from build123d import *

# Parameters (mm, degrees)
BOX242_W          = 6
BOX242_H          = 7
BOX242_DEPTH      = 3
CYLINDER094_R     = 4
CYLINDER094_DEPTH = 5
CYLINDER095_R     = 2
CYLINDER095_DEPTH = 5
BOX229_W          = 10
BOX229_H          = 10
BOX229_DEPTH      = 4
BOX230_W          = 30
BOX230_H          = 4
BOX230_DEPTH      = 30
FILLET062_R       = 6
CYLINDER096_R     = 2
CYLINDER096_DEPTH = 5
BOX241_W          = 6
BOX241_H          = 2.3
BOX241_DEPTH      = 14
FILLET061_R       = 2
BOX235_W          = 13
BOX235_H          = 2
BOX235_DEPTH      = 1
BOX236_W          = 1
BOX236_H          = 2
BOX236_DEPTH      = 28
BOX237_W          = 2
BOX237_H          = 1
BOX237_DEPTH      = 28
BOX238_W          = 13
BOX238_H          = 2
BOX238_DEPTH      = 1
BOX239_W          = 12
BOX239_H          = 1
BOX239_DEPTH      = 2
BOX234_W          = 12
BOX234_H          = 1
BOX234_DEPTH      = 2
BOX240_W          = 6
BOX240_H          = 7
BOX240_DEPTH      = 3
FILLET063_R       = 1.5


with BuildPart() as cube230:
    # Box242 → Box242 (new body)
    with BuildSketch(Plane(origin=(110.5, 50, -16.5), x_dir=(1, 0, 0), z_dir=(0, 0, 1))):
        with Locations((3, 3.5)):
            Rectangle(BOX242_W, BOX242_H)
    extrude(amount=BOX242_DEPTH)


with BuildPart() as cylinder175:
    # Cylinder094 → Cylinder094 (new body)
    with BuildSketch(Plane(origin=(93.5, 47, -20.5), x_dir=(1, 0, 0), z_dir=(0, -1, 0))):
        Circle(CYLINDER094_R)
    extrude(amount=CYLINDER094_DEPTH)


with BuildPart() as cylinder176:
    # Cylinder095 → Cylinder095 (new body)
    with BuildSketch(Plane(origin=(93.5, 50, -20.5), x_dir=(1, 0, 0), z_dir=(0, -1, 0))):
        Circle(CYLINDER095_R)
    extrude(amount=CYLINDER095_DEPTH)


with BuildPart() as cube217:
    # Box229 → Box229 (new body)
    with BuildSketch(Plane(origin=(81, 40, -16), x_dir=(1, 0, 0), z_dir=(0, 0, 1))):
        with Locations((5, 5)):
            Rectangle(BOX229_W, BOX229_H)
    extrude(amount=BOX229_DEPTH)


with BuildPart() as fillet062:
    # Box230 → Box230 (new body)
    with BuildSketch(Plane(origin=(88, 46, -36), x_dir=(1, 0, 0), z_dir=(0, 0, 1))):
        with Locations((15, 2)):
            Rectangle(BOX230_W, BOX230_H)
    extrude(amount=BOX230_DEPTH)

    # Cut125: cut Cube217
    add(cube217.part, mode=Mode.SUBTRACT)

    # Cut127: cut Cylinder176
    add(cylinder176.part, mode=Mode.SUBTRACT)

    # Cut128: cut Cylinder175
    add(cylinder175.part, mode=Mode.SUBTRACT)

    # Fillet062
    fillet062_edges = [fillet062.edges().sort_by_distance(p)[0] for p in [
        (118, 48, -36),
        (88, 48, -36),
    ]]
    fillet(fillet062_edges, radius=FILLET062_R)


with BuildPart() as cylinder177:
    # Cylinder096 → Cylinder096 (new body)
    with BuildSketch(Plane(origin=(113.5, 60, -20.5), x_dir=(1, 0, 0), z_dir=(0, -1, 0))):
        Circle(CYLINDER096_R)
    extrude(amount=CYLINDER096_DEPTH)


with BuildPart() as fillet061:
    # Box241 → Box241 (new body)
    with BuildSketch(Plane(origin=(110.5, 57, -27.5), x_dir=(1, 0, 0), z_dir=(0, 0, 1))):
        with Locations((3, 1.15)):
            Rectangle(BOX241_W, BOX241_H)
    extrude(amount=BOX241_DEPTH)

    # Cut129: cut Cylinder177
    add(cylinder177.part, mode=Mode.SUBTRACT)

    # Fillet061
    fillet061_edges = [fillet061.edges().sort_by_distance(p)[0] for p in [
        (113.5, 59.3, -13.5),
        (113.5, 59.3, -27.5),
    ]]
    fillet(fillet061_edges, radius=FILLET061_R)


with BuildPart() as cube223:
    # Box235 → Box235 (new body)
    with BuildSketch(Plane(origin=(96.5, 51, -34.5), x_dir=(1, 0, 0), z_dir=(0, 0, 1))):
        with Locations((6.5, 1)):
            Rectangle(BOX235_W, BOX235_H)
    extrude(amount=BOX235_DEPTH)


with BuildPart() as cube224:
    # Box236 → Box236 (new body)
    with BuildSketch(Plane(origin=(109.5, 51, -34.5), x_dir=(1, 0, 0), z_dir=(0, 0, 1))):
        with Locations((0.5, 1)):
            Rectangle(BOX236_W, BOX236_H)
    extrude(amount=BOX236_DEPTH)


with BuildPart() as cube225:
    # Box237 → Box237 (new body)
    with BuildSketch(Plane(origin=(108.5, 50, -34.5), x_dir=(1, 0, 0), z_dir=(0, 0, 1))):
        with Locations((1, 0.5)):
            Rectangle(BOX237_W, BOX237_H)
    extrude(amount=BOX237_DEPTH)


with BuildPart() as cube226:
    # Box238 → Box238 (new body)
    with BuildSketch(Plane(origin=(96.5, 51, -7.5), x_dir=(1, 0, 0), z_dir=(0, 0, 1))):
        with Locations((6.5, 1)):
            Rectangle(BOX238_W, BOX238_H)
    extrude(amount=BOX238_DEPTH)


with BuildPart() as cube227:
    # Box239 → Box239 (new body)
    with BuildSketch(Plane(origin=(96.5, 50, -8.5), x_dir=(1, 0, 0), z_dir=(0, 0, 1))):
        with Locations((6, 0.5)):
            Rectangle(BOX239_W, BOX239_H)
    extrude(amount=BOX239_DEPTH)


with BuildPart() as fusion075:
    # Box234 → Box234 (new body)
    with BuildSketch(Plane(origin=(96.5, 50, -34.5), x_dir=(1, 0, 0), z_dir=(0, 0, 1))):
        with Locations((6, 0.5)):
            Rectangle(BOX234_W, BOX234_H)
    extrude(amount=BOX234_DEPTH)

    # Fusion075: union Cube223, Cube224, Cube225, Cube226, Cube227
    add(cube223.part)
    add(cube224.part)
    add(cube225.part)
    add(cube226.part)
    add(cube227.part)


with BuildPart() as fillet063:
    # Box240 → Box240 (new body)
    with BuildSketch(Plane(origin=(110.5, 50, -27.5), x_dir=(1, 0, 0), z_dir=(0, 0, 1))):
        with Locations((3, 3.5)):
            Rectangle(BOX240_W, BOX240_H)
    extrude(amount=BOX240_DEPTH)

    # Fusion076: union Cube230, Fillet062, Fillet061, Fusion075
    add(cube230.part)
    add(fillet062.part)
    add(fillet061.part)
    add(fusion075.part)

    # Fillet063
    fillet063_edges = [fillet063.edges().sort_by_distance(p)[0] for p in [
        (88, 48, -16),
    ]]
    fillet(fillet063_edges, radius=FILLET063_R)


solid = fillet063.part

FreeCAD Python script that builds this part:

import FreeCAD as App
import Part
import Sketcher
Q = App.Units.Quantity


def edges_at(feature, points):
    """Names of the edges that pass closest to the given points."""
    edges = feature.Shape.Edges
    near = lambda p: min(range(len(edges)), key=lambda i: edges[i].distToShape(Part.Vertex(*p))[0])
    return sorted({f"Edge{near(p) + 1}" for p in points})

doc = App.newDocument("Part")
body = doc.addObject("PartDesign::Body", "Body")

# Sketch on XY plane
sketch1 = body.newObject("Sketcher::SketchObject", "Sketch")
sketch1.AttachmentSupport = (doc.getObject("XY_Plane"), [""])
sketch1.MapMode = "FlatFace"
sketch1.AttachmentOffset = App.Placement(App.Vector(0, 0, -16.5), App.Rotation())
sketch1.addGeometry(Part.LineSegment(App.Vector(110.5, 57, 0), App.Vector(110.5, 50, 0)), False)
sketch1.addGeometry(Part.LineSegment(App.Vector(110.5, 50, 0), App.Vector(116.5, 50, 0)), False)
sketch1.addGeometry(Part.LineSegment(App.Vector(116.5, 50, 0), App.Vector(116.5, 57, 0)), False)
sketch1.addGeometry(Part.LineSegment(App.Vector(116.5, 57, 0), App.Vector(110.5, 57, 0)), False)
sketch1.addConstraint(Sketcher.Constraint("Coincident", 0, 2, 1, 1))
sketch1.addConstraint(Sketcher.Constraint("Coincident", 1, 2, 2, 1))
sketch1.addConstraint(Sketcher.Constraint("Coincident", 2, 2, 3, 1))
sketch1.addConstraint(Sketcher.Constraint("Coincident", 3, 2, 0, 1))
sketch1.addConstraint(Sketcher.Constraint("Vertical", 0))
sketch1.addConstraint(Sketcher.Constraint("Horizontal", 1))
sketch1.addConstraint(Sketcher.Constraint("Vertical", 2))
sketch1.addConstraint(Sketcher.Constraint("Horizontal", 3))
sketch1.addConstraint(Sketcher.Constraint("DistanceX", 1, 1, 1, 2, Q("6 mm")))
sketch1.addConstraint(Sketcher.Constraint("DistanceY", 0, 2, 0, 1, Q("7 mm")))
sketch1.addConstraint(Sketcher.Constraint("DistanceY", -1, 1, 0, 2, Q("50 mm")))
sketch1.addConstraint(Sketcher.Constraint("DistanceX", -1, 1, 0, 2, Q("110.5 mm")))
pad1 = body.newObject("PartDesign::Pad", "Pad")
pad1.Profile = sketch1
pad1.Length = 3
body2 = doc.addObject("PartDesign::Body", "Body001")

# Sketch on XZ plane
sketch2 = body2.newObject("Sketcher::SketchObject", "Sketch001")
sketch2.AttachmentSupport = (doc.getObject("XZ_Plane001"), [""])
sketch2.MapMode = "FlatFace"
sketch2.AttachmentOffset = App.Placement(App.Vector(0, 0, -47), App.Rotation())
sketch2.addGeometry(Part.Circle(App.Vector(93.5, -20.5, 0), App.Vector(0, 0, 1), 4), False)
sketch2.addConstraint(Sketcher.Constraint("Diameter", 0, Q("8 mm")))
sketch2.addConstraint(Sketcher.Constraint("DistanceX", -1, 1, 0, 3, Q("93.5 mm")))
sketch2.addConstraint(Sketcher.Constraint("DistanceY", 0, 3, -1, 1, Q("20.5 mm")))
pad2 = body2.newObject("PartDesign::Pad", "Pad001")
pad2.Profile = sketch2
pad2.Length = 5
body3 = doc.addObject("PartDesign::Body", "Body002")

# Sketch on XZ plane
sketch3 = body3.newObject("Sketcher::SketchObject", "Sketch002")
sketch3.AttachmentSupport = (doc.getObject("XZ_Plane002"), [""])
sketch3.MapMode = "FlatFace"
sketch3.AttachmentOffset = App.Placement(App.Vector(0, 0, -50), App.Rotation())
sketch3.addGeometry(Part.Circle(App.Vector(93.5, -20.5, 0), App.Vector(0, 0, 1), 2), False)
sketch3.addConstraint(Sketcher.Constraint("Diameter", 0, Q("4 mm")))
sketch3.addConstraint(Sketcher.Constraint("DistanceX", -1, 1, 0, 3, Q("93.5 mm")))
sketch3.addConstraint(Sketcher.Constraint("DistanceY", 0, 3, -1, 1, Q("20.5 mm")))
pad3 = body3.newObject("PartDesign::Pad", "Pad002")
pad3.Profile = sketch3
pad3.Length = 5
body4 = doc.addObject("PartDesign::Body", "Body003")

# Sketch on XY plane
sketch4 = body4.newObject("Sketcher::SketchObject", "Sketch003")
sketch4.AttachmentSupport = (doc.getObject("XY_Plane003"), [""])
sketch4.MapMode = "FlatFace"
sketch4.AttachmentOffset = App.Placement(App.Vector(0, 0, -16), App.Rotation())
sketch4.addGeometry(Part.LineSegment(App.Vector(81, 50, 0), App.Vector(81, 40, 0)), False)
sketch4.addGeometry(Part.LineSegment(App.Vector(81, 40, 0), App.Vector(91, 40, 0)), False)
sketch4.addGeometry(Part.LineSegment(App.Vector(91, 40, 0), App.Vector(91, 50, 0)), False)
sketch4.addGeometry(Part.LineSegment(App.Vector(91, 50, 0), App.Vector(81, 50, 0)), False)
sketch4.addConstraint(Sketcher.Constraint("Coincident", 0, 2, 1, 1))
sketch4.addConstraint(Sketcher.Constraint("Coincident", 1, 2, 2, 1))
sketch4.addConstraint(Sketcher.Constraint("Coincident", 2, 2, 3, 1))
sketch4.addConstraint(Sketcher.Constraint("Coincident", 3, 2, 0, 1))
sketch4.addConstraint(Sketcher.Constraint("Vertical", 0))
sketch4.addConstraint(Sketcher.Constraint("Horizontal", 1))
sketch4.addConstraint(Sketcher.Constraint("Vertical", 2))
sketch4.addConstraint(Sketcher.Constraint("Horizontal", 3))
sketch4.addConstraint(Sketcher.Constraint("Equal", 3, 0))
sketch4.addConstraint(Sketcher.Constraint("DistanceX", 1, 1, 1, 2, Q("10 mm")))
sketch4.addConstraint(Sketcher.Constraint("DistanceX", -1, 1, 0, 2, Q("81 mm")))
sketch4.addConstraint(Sketcher.Constraint("DistanceY", -1, 1, 0, 2, Q("40 mm")))
pad4 = body4.newObject("PartDesign::Pad", "Pad003")
pad4.Profile = sketch4
pad4.Length = 4
body5 = doc.addObject("PartDesign::Body", "Body004")

# Sketch on XY plane
sketch5 = body5.newObject("Sketcher::SketchObject", "Sketch004")
sketch5.AttachmentSupport = (doc.getObject("XY_Plane004"), [""])
sketch5.MapMode = "FlatFace"
sketch5.AttachmentOffset = App.Placement(App.Vector(0, 0, -36), App.Rotation())
sketch5.addGeometry(Part.LineSegment(App.Vector(88, 50, 0), App.Vector(88, 46, 0)), False)
sketch5.addGeometry(Part.LineSegment(App.Vector(88, 46, 0), App.Vector(118, 46, 0)), False)
sketch5.addGeometry(Part.LineSegment(App.Vector(118, 46, 0), App.Vector(118, 50, 0)), False)
sketch5.addGeometry(Part.LineSegment(App.Vector(118, 50, 0), App.Vector(88, 50, 0)), False)
sketch5.addConstraint(Sketcher.Constraint("Coincident", 0, 2, 1, 1))
sketch5.addConstraint(Sketcher.Constraint("Coincident", 1, 2, 2, 1))
sketch5.addConstraint(Sketcher.Constraint("Coincident", 2, 2, 3, 1))
sketch5.addConstraint(Sketcher.Constraint("Coincident", 3, 2, 0, 1))
sketch5.addConstraint(Sketcher.Constraint("Vertical", 0))
sketch5.addConstraint(Sketcher.Constraint("Horizontal", 1))
sketch5.addConstraint(Sketcher.Constraint("Vertical", 2))
sketch5.addConstraint(Sketcher.Constraint("Horizontal", 3))
sketch5.addConstraint(Sketcher.Constraint("DistanceX", 1, 1, 1, 2, Q("30 mm")))
sketch5.addConstraint(Sketcher.Constraint("DistanceY", 0, 2, 0, 1, Q("4 mm")))
sketch5.addConstraint(Sketcher.Constraint("DistanceX", -1, 1, 0, 2, Q("88 mm")))
sketch5.addConstraint(Sketcher.Constraint("DistanceY", -1, 1, 0, 2, Q("46 mm")))
pad5 = body5.newObject("PartDesign::Pad", "Pad004")
pad5.Profile = sketch5
pad5.Length = 30
doc.recompute()

boolean = body5.newObject("PartDesign::Boolean", "Boolean")
boolean.Type = "Cut"
boolean.addObjects([body4])
doc.recompute()

boolean2 = body5.newObject("PartDesign::Boolean", "Boolean001")
boolean2.Type = "Cut"
boolean2.addObjects([body3])
doc.recompute()

boolean3 = body5.newObject("PartDesign::Boolean", "Boolean002")
boolean3.Type = "Cut"
boolean3.addObjects([body2])
doc.recompute()

fillet = body5.newObject("PartDesign::Fillet", "Fillet")
fillet.Base = (boolean3, edges_at(boolean3, [(118, 48, -36), (88, 48, -36)]))
fillet.Radius = 6
body6 = doc.addObject("PartDesign::Body", "Body005")

# Sketch on XZ plane
sketch6 = body6.newObject("Sketcher::SketchObject", "Sketch005")
sketch6.AttachmentSupport = (doc.getObject("XZ_Plane005"), [""])
sketch6.MapMode = "FlatFace"
sketch6.AttachmentOffset = App.Placement(App.Vector(0, 0, -60), App.Rotation())
sketch6.addGeometry(Part.Circle(App.Vector(113.5, -20.5, 0), App.Vector(0, 0, 1), 2), False)
sketch6.addConstraint(Sketcher.Constraint("Diameter", 0, Q("4 mm")))
sketch6.addConstraint(Sketcher.Constraint("DistanceX", -1, 1, 0, 3, Q("113.5 mm")))
sketch6.addConstraint(Sketcher.Constraint("DistanceY", 0, 3, -1, 1, Q("20.5 mm")))
pad6 = body6.newObject("PartDesign::Pad", "Pad005")
pad6.Profile = sketch6
pad6.Length = 5
body7 = doc.addObject("PartDesign::Body", "Body006")

# Sketch on XY plane
sketch7 = body7.newObject("Sketcher::SketchObject", "Sketch006")
sketch7.AttachmentSupport = (doc.getObject("XY_Plane006"), [""])
sketch7.MapMode = "FlatFace"
sketch7.AttachmentOffset = App.Placement(App.Vector(0, 0, -27.5), App.Rotation())
sketch7.addGeometry(Part.LineSegment(App.Vector(110.5, 59.3, 0), App.Vector(110.5, 57, 0)), False)
sketch7.addGeometry(Part.LineSegment(App.Vector(110.5, 57, 0), App.Vector(116.5, 57, 0)), False)
sketch7.addGeometry(Part.LineSegment(App.Vector(116.5, 57, 0), App.Vector(116.5, 59.3, 0)), False)
sketch7.addGeometry(Part.LineSegment(App.Vector(116.5, 59.3, 0), App.Vector(110.5, 59.3, 0)), False)
sketch7.addConstraint(Sketcher.Constraint("Coincident", 0, 2, 1, 1))
sketch7.addConstraint(Sketcher.Constraint("Coincident", 1, 2, 2, 1))
sketch7.addConstraint(Sketcher.Constraint("Coincident", 2, 2, 3, 1))
sketch7.addConstraint(Sketcher.Constraint("Coincident", 3, 2, 0, 1))
sketch7.addConstraint(Sketcher.Constraint("Vertical", 0))
sketch7.addConstraint(Sketcher.Constraint("Horizontal", 1))
sketch7.addConstraint(Sketcher.Constraint("Vertical", 2))
sketch7.addConstraint(Sketcher.Constraint("Horizontal", 3))
sketch7.addConstraint(Sketcher.Constraint("DistanceX", 1, 1, 1, 2, Q("6 mm")))
sketch7.addConstraint(Sketcher.Constraint("DistanceY", 0, 2, 0, 1, Q("2.3 mm")))
sketch7.addConstraint(Sketcher.Constraint("DistanceY", -1, 1, 0, 2, Q("57 mm")))
sketch7.addConstraint(Sketcher.Constraint("DistanceX", -1, 1, 0, 2, Q("110.5 mm")))
pad7 = body7.newObject("PartDesign::Pad", "Pad006")
pad7.Profile = sketch7
pad7.Length = 14
doc.recompute()

boolean4 = body7.newObject("PartDesign::Boolean", "Boolean003")
boolean4.Type = "Cut"
boolean4.addObjects([body6])
doc.recompute()

fillet2 = body7.newObject("PartDesign::Fillet", "Fillet001")
fillet2.Base = (boolean4, edges_at(boolean4, [(113.5, 59.3, -13.5), (113.5, 59.3, -27.5)]))
fillet2.Radius = 2
body8 = doc.addObject("PartDesign::Body", "Body007")

# Sketch on XY plane
sketch8 = body8.newObject("Sketcher::SketchObject", "Sketch007")
sketch8.AttachmentSupport = (doc.getObject("XY_Plane007"), [""])
sketch8.MapMode = "FlatFace"
sketch8.AttachmentOffset = App.Placement(App.Vector(0, 0, -34.5), App.Rotation())
sketch8.addGeometry(Part.LineSegment(App.Vector(96.5, 53, 0), App.Vector(96.5, 51, 0)), False)
sketch8.addGeometry(Part.LineSegment(App.Vector(96.5, 51, 0), App.Vector(109.5, 51, 0)), False)
sketch8.addGeometry(Part.LineSegment(App.Vector(109.5, 51, 0), App.Vector(109.5, 53, 0)), False)
sketch8.addGeometry(Part.LineSegment(App.Vector(109.5, 53, 0), App.Vector(96.5, 53, 0)), False)
sketch8.addConstraint(Sketcher.Constraint("Coincident", 0, 2, 1, 1))
sketch8.addConstraint(Sketcher.Constraint("Coincident", 1, 2, 2, 1))
sketch8.addConstraint(Sketcher.Constraint("Coincident", 2, 2, 3, 1))
sketch8.addConstraint(Sketcher.Constraint("Coincident", 3, 2, 0, 1))
sketch8.addConstraint(Sketcher.Constraint("Vertical", 0))
sketch8.addConstraint(Sketcher.Constraint("Horizontal", 1))
sketch8.addConstraint(Sketcher.Constraint("Vertical", 2))
sketch8.addConstraint(Sketcher.Constraint("Horizontal", 3))
sketch8.addConstraint(Sketcher.Constraint("DistanceX", 1, 1, 1, 2, Q("13 mm")))
sketch8.addConstraint(Sketcher.Constraint("DistanceY", 0, 2, 0, 1, Q("2 mm")))
sketch8.addConstraint(Sketcher.Constraint("DistanceY", -1, 1, 0, 2, Q("51 mm")))
sketch8.addConstraint(Sketcher.Constraint("DistanceX", -1, 1, 0, 2, Q("96.5 mm")))
pad8 = body8.newObject("PartDesign::Pad", "Pad007")
pad8.Profile = sketch8
pad8.Length = 1
body9 = doc.addObject("PartDesign::Body", "Body008")

# Sketch on XY plane
sketch9 = body9.newObject("Sketcher::SketchObject", "Sketch008")
sketch9.AttachmentSupport = (doc.getObject("XY_Plane008"), [""])
sketch9.MapMode = "FlatFace"
sketch9.AttachmentOffset = App.Placement(App.Vector(0, 0, -34.5), App.Rotation())
sketch9.addGeometry(Part.LineSegment(App.Vector(109.5, 53, 0), App.Vector(109.5, 51, 0)), False)
sketch9.addGeometry(Part.LineSegment(App.Vector(109.5, 51, 0), App.Vector(110.5, 51, 0)), False)
sketch9.addGeometry(Part.LineSegment(App.Vector(110.5, 51, 0), App.Vector(110.5, 53, 0)), False)
sketch9.addGeometry(Part.LineSegment(App.Vector(110.5, 53, 0), App.Vector(109.5, 53, 0)), False)
sketch9.addConstraint(Sketcher.Constraint("Coincident", 0, 2, 1, 1))
sketch9.addConstraint(Sketcher.Constraint("Coincident", 1, 2, 2, 1))
sketch9.addConstraint(Sketcher.Constraint("Coincident", 2, 2, 3, 1))
sketch9.addConstraint(Sketcher.Constraint("Coincident", 3, 2, 0, 1))
sketch9.addConstraint(Sketcher.Constraint("Vertical", 0))
sketch9.addConstraint(Sketcher.Constraint("Horizontal", 1))
sketch9.addConstraint(Sketcher.Constraint("Vertical", 2))
sketch9.addConstraint(Sketcher.Constraint("Horizontal", 3))
sketch9.addConstraint(Sketcher.Constraint("DistanceX", 1, 1, 1, 2, Q("1 mm")))
sketch9.addConstraint(Sketcher.Constraint("DistanceY", 0, 2, 0, 1, Q("2 mm")))
sketch9.addConstraint(Sketcher.Constraint("DistanceY", -1, 1, 0, 2, Q("51 mm")))
sketch9.addConstraint(Sketcher.Constraint("DistanceX", -1, 1, 0, 2, Q("109.5 mm")))
pad9 = body9.newObject("PartDesign::Pad", "Pad008")
pad9.Profile = sketch9
pad9.Length = 28
body10 = doc.addObject("PartDesign::Body", "Body009")

# Sketch on XY plane
sketch10 = body10.newObject("Sketcher::SketchObject", "Sketch009")
sketch10.AttachmentSupport = (doc.getObject("XY_Plane009"), [""])
sketch10.MapMode = "FlatFace"
sketch10.AttachmentOffset = App.Placement(App.Vector(0, 0, -34.5), App.Rotation())
sketch10.addGeometry(Part.LineSegment(App.Vector(108.5, 51, 0), App.Vector(108.5, 50, 0)), False)
sketch10.addGeometry(Part.LineSegment(App.Vector(108.5, 50, 0), App.Vector(110.5, 50, 0)), False)
sketch10.addGeometry(Part.LineSegment(App.Vector(110.5, 50, 0), App.Vector(110.5, 51, 0)), False)
sketch10.addGeometry(Part.LineSegment(App.Vector(110.5, 51, 0), App.Vector(108.5, 51, 0)), False)
sketch10.addConstraint(Sketcher.Constraint("Coincident", 0, 2, 1, 1))
sketch10.addConstraint(Sketcher.Constraint("Coincident", 1, 2, 2, 1))
sketch10.addConstraint(Sketcher.Constraint("Coincident", 2, 2, 3, 1))
sketch10.addConstraint(Sketcher.Constraint("Coincident", 3, 2, 0, 1))
sketch10.addConstraint(Sketcher.Constraint("Vertical", 0))
sketch10.addConstraint(Sketcher.Constraint("Horizontal", 1))
sketch10.addConstraint(Sketcher.Constraint("Vertical", 2))
sketch10.addConstraint(Sketcher.Constraint("Horizontal", 3))
sketch10.addConstraint(Sketcher.Constraint("DistanceX", 1, 1, 1, 2, Q("2 mm")))
sketch10.addConstraint(Sketcher.Constraint("DistanceY", 0, 2, 0, 1, Q("1 mm")))
sketch10.addConstraint(Sketcher.Constraint("DistanceY", -1, 1, 0, 2, Q("50 mm")))
sketch10.addConstraint(Sketcher.Constraint("DistanceX", -1, 1, 0, 2, Q("108.5 mm")))
pad10 = body10.newObject("PartDesign::Pad", "Pad009")
pad10.Profile = sketch10
pad10.Length = 28
body11 = doc.addObject("PartDesign::Body", "Body010")

# Sketch on XY plane
sketch11 = body11.newObject("Sketcher::SketchObject", "Sketch010")
sketch11.AttachmentSupport = (doc.getObject("XY_Plane010"), [""])
sketch11.MapMode = "FlatFace"
sketch11.AttachmentOffset = App.Placement(App.Vector(0, 0, -7.5), App.Rotation())
sketch11.addGeometry(Part.LineSegment(App.Vector(96.5, 53, 0), App.Vector(96.5, 51, 0)), False)
sketch11.addGeometry(Part.LineSegment(App.Vector(96.5, 51, 0), App.Vector(109.5, 51, 0)), False)
sketch11.addGeometry(Part.LineSegment(App.Vector(109.5, 51, 0), App.Vector(109.5, 53, 0)), False)
sketch11.addGeometry(Part.LineSegment(App.Vector(109.5, 53, 0), App.Vector(96.5, 53, 0)), False)
sketch11.addConstraint(Sketcher.Constraint("Coincident", 0, 2, 1, 1))
sketch11.addConstraint(Sketcher.Constraint("Coincident", 1, 2, 2, 1))
sketch11.addConstraint(Sketcher.Constraint("Coincident", 2, 2, 3, 1))
sketch11.addConstraint(Sketcher.Constraint("Coincident", 3, 2, 0, 1))
sketch11.addConstraint(Sketcher.Constraint("Vertical", 0))
sketch11.addConstraint(Sketcher.Constraint("Horizontal", 1))
sketch11.addConstraint(Sketcher.Constraint("Vertical", 2))
sketch11.addConstraint(Sketcher.Constraint("Horizontal", 3))
sketch11.addConstraint(Sketcher.Constraint("DistanceX", 1, 1, 1, 2, Q("13 mm")))
sketch11.addConstraint(Sketcher.Constraint("DistanceY", 0, 2, 0, 1, Q("2 mm")))
sketch11.addConstraint(Sketcher.Constraint("DistanceY", -1, 1, 0, 2, Q("51 mm")))
sketch11.addConstraint(Sketcher.Constraint("DistanceX", -1, 1, 0, 2, Q("96.5 mm")))
pad11 = body11.newObject("PartDesign::Pad", "Pad010")
pad11.Profile = sketch11
pad11.Length = 1
body12 = doc.addObject("PartDesign::Body", "Body011")

# Sketch on XY plane
sketch12 = body12.newObject("Sketcher::SketchObject", "Sketch011")
sketch12.AttachmentSupport = (doc.getObject("XY_Plane011"), [""])
sketch12.MapMode = "FlatFace"
sketch12.AttachmentOffset = App.Placement(App.Vector(0, 0, -8.5), App.Rotation())
sketch12.addGeometry(Part.LineSegment(App.Vector(96.5, 51, 0), App.Vector(96.5, 50, 0)), False)
sketch12.addGeometry(Part.LineSegment(App.Vector(96.5, 50, 0), App.Vector(108.5, 50, 0)), False)
sketch12.addGeometry(Part.LineSegment(App.Vector(108.5, 50, 0), App.Vector(108.5, 51, 0)), False)
sketch12.addGeometry(Part.LineSegment(App.Vector(108.5, 51, 0), App.Vector(96.5, 51, 0)), False)
sketch12.addConstraint(Sketcher.Constraint("Coincident", 0, 2, 1, 1))
sketch12.addConstraint(Sketcher.Constraint("Coincident", 1, 2, 2, 1))
sketch12.addConstraint(Sketcher.Constraint("Coincident", 2, 2, 3, 1))
sketch12.addConstraint(Sketcher.Constraint("Coincident", 3, 2, 0, 1))
sketch12.addConstraint(Sketcher.Constraint("Vertical", 0))
sketch12.addConstraint(Sketcher.Constraint("Horizontal", 1))
sketch12.addConstraint(Sketcher.Constraint("Vertical", 2))
sketch12.addConstraint(Sketcher.Constraint("Horizontal", 3))
sketch12.addConstraint(Sketcher.Constraint("DistanceX", 1, 1, 1, 2, Q("12 mm")))
sketch12.addConstraint(Sketcher.Constraint("DistanceY", 0, 2, 0, 1, Q("1 mm")))
sketch12.addConstraint(Sketcher.Constraint("DistanceY", -1, 1, 0, 2, Q("50 mm")))
sketch12.addConstraint(Sketcher.Constraint("DistanceX", -1, 1, 0, 2, Q("96.5 mm")))
pad12 = body12.newObject("PartDesign::Pad", "Pad011")
pad12.Profile = sketch12
pad12.Length = 2
body13 = doc.addObject("PartDesign::Body", "Body012")

# Sketch on XY plane
sketch13 = body13.newObject("Sketcher::SketchObject", "Sketch012")
sketch13.AttachmentSupport = (doc.getObject("XY_Plane012"), [""])
sketch13.MapMode = "FlatFace"
sketch13.AttachmentOffset = App.Placement(App.Vector(0, 0, -34.5), App.Rotation())
sketch13.addGeometry(Part.LineSegment(App.Vector(96.5, 51, 0), App.Vector(96.5, 50, 0)), False)
sketch13.addGeometry(Part.LineSegment(App.Vector(96.5, 50, 0), App.Vector(108.5, 50, 0)), False)
sketch13.addGeometry(Part.LineSegment(App.Vector(108.5, 50, 0), App.Vector(108.5, 51, 0)), False)
sketch13.addGeometry(Part.LineSegment(App.Vector(108.5, 51, 0), App.Vector(96.5, 51, 0)), False)
sketch13.addConstraint(Sketcher.Constraint("Coincident", 0, 2, 1, 1))
sketch13.addConstraint(Sketcher.Constraint("Coincident", 1, 2, 2, 1))
sketch13.addConstraint(Sketcher.Constraint("Coincident", 2, 2, 3, 1))
sketch13.addConstraint(Sketcher.Constraint("Coincident", 3, 2, 0, 1))
sketch13.addConstraint(Sketcher.Constraint("Vertical", 0))
sketch13.addConstraint(Sketcher.Constraint("Horizontal", 1))
sketch13.addConstraint(Sketcher.Constraint("Vertical", 2))
sketch13.addConstraint(Sketcher.Constraint("Horizontal", 3))
sketch13.addConstraint(Sketcher.Constraint("DistanceX", 1, 1, 1, 2, Q("12 mm")))
sketch13.addConstraint(Sketcher.Constraint("DistanceY", 0, 2, 0, 1, Q("1 mm")))
sketch13.addConstraint(Sketcher.Constraint("DistanceY", -1, 1, 0, 2, Q("50 mm")))
sketch13.addConstraint(Sketcher.Constraint("DistanceX", -1, 1, 0, 2, Q("96.5 mm")))
pad13 = body13.newObject("PartDesign::Pad", "Pad012")
pad13.Profile = sketch13
pad13.Length = 2
doc.recompute()

boolean5 = body13.newObject("PartDesign::Boolean", "Boolean004")
boolean5.Type = "Fuse"
boolean5.addObjects([body8])
doc.recompute()

boolean6 = body13.newObject("PartDesign::Boolean", "Boolean005")
boolean6.Type = "Fuse"
boolean6.addObjects([body9])
doc.recompute()

boolean7 = body13.newObject("PartDesign::Boolean", "Boolean006")
boolean7.Type = "Fuse"
boolean7.addObjects([body10])
doc.recompute()

boolean8 = body13.newObject("PartDesign::Boolean", "Boolean007")
boolean8.Type = "Fuse"
boolean8.addObjects([body11])
doc.recompute()

boolean9 = body13.newObject("PartDesign::Boolean", "Boolean008")
boolean9.Type = "Fuse"
boolean9.addObjects([body12])
body14 = doc.addObject("PartDesign::Body", "Body013")
body14.AllowCompound = True

# Sketch on XY plane
sketch14 = body14.newObject("Sketcher::SketchObject", "Sketch013")
sketch14.AttachmentSupport = (doc.getObject("XY_Plane013"), [""])
sketch14.MapMode = "FlatFace"
sketch14.AttachmentOffset = App.Placement(App.Vector(0, 0, -27.5), App.Rotation())
sketch14.addGeometry(Part.LineSegment(App.Vector(110.5, 57, 0), App.Vector(110.5, 50, 0)), False)
sketch14.addGeometry(Part.LineSegment(App.Vector(110.5, 50, 0), App.Vector(116.5, 50, 0)), False)
sketch14.addGeometry(Part.LineSegment(App.Vector(116.5, 50, 0), App.Vector(116.5, 57, 0)), False)
sketch14.addGeometry(Part.LineSegment(App.Vector(116.5, 57, 0), App.Vector(110.5, 57, 0)), False)
sketch14.addConstraint(Sketcher.Constraint("Coincident", 0, 2, 1, 1))
sketch14.addConstraint(Sketcher.Constraint("Coincident", 1, 2, 2, 1))
sketch14.addConstraint(Sketcher.Constraint("Coincident", 2, 2, 3, 1))
sketch14.addConstraint(Sketcher.Constraint("Coincident", 3, 2, 0, 1))
sketch14.addConstraint(Sketcher.Constraint("Vertical", 0))
sketch14.addConstraint(Sketcher.Constraint("Horizontal", 1))
sketch14.addConstraint(Sketcher.Constraint("Vertical", 2))
sketch14.addConstraint(Sketcher.Constraint("Horizontal", 3))
sketch14.addConstraint(Sketcher.Constraint("DistanceX", 1, 1, 1, 2, Q("6 mm")))
sketch14.addConstraint(Sketcher.Constraint("DistanceY", 0, 2, 0, 1, Q("7 mm")))
sketch14.addConstraint(Sketcher.Constraint("DistanceY", -1, 1, 0, 2, Q("50 mm")))
sketch14.addConstraint(Sketcher.Constraint("DistanceX", -1, 1, 0, 2, Q("110.5 mm")))
pad14 = body14.newObject("PartDesign::Pad", "Pad013")
pad14.Profile = sketch14
pad14.Length = 3
doc.recompute()

boolean10 = body14.newObject("PartDesign::Boolean", "Boolean009")
boolean10.Type = "Fuse"
boolean10.addObjects([body])
doc.recompute()

boolean11 = body14.newObject("PartDesign::Boolean", "Boolean010")
boolean11.Type = "Fuse"
boolean11.addObjects([body5])
doc.recompute()

boolean12 = body14.newObject("PartDesign::Boolean", "Boolean011")
boolean12.Type = "Fuse"
boolean12.addObjects([body7])
doc.recompute()

boolean13 = body14.newObject("PartDesign::Boolean", "Boolean012")
boolean13.Type = "Fuse"
boolean13.addObjects([body13])
doc.recompute()

fillet3 = body14.newObject("PartDesign::Fillet", "Fillet002")
fillet3.Base = (boolean13, edges_at(boolean13, [(88, 48, -16)]))
fillet3.Radius = 1.5

doc.recompute()
